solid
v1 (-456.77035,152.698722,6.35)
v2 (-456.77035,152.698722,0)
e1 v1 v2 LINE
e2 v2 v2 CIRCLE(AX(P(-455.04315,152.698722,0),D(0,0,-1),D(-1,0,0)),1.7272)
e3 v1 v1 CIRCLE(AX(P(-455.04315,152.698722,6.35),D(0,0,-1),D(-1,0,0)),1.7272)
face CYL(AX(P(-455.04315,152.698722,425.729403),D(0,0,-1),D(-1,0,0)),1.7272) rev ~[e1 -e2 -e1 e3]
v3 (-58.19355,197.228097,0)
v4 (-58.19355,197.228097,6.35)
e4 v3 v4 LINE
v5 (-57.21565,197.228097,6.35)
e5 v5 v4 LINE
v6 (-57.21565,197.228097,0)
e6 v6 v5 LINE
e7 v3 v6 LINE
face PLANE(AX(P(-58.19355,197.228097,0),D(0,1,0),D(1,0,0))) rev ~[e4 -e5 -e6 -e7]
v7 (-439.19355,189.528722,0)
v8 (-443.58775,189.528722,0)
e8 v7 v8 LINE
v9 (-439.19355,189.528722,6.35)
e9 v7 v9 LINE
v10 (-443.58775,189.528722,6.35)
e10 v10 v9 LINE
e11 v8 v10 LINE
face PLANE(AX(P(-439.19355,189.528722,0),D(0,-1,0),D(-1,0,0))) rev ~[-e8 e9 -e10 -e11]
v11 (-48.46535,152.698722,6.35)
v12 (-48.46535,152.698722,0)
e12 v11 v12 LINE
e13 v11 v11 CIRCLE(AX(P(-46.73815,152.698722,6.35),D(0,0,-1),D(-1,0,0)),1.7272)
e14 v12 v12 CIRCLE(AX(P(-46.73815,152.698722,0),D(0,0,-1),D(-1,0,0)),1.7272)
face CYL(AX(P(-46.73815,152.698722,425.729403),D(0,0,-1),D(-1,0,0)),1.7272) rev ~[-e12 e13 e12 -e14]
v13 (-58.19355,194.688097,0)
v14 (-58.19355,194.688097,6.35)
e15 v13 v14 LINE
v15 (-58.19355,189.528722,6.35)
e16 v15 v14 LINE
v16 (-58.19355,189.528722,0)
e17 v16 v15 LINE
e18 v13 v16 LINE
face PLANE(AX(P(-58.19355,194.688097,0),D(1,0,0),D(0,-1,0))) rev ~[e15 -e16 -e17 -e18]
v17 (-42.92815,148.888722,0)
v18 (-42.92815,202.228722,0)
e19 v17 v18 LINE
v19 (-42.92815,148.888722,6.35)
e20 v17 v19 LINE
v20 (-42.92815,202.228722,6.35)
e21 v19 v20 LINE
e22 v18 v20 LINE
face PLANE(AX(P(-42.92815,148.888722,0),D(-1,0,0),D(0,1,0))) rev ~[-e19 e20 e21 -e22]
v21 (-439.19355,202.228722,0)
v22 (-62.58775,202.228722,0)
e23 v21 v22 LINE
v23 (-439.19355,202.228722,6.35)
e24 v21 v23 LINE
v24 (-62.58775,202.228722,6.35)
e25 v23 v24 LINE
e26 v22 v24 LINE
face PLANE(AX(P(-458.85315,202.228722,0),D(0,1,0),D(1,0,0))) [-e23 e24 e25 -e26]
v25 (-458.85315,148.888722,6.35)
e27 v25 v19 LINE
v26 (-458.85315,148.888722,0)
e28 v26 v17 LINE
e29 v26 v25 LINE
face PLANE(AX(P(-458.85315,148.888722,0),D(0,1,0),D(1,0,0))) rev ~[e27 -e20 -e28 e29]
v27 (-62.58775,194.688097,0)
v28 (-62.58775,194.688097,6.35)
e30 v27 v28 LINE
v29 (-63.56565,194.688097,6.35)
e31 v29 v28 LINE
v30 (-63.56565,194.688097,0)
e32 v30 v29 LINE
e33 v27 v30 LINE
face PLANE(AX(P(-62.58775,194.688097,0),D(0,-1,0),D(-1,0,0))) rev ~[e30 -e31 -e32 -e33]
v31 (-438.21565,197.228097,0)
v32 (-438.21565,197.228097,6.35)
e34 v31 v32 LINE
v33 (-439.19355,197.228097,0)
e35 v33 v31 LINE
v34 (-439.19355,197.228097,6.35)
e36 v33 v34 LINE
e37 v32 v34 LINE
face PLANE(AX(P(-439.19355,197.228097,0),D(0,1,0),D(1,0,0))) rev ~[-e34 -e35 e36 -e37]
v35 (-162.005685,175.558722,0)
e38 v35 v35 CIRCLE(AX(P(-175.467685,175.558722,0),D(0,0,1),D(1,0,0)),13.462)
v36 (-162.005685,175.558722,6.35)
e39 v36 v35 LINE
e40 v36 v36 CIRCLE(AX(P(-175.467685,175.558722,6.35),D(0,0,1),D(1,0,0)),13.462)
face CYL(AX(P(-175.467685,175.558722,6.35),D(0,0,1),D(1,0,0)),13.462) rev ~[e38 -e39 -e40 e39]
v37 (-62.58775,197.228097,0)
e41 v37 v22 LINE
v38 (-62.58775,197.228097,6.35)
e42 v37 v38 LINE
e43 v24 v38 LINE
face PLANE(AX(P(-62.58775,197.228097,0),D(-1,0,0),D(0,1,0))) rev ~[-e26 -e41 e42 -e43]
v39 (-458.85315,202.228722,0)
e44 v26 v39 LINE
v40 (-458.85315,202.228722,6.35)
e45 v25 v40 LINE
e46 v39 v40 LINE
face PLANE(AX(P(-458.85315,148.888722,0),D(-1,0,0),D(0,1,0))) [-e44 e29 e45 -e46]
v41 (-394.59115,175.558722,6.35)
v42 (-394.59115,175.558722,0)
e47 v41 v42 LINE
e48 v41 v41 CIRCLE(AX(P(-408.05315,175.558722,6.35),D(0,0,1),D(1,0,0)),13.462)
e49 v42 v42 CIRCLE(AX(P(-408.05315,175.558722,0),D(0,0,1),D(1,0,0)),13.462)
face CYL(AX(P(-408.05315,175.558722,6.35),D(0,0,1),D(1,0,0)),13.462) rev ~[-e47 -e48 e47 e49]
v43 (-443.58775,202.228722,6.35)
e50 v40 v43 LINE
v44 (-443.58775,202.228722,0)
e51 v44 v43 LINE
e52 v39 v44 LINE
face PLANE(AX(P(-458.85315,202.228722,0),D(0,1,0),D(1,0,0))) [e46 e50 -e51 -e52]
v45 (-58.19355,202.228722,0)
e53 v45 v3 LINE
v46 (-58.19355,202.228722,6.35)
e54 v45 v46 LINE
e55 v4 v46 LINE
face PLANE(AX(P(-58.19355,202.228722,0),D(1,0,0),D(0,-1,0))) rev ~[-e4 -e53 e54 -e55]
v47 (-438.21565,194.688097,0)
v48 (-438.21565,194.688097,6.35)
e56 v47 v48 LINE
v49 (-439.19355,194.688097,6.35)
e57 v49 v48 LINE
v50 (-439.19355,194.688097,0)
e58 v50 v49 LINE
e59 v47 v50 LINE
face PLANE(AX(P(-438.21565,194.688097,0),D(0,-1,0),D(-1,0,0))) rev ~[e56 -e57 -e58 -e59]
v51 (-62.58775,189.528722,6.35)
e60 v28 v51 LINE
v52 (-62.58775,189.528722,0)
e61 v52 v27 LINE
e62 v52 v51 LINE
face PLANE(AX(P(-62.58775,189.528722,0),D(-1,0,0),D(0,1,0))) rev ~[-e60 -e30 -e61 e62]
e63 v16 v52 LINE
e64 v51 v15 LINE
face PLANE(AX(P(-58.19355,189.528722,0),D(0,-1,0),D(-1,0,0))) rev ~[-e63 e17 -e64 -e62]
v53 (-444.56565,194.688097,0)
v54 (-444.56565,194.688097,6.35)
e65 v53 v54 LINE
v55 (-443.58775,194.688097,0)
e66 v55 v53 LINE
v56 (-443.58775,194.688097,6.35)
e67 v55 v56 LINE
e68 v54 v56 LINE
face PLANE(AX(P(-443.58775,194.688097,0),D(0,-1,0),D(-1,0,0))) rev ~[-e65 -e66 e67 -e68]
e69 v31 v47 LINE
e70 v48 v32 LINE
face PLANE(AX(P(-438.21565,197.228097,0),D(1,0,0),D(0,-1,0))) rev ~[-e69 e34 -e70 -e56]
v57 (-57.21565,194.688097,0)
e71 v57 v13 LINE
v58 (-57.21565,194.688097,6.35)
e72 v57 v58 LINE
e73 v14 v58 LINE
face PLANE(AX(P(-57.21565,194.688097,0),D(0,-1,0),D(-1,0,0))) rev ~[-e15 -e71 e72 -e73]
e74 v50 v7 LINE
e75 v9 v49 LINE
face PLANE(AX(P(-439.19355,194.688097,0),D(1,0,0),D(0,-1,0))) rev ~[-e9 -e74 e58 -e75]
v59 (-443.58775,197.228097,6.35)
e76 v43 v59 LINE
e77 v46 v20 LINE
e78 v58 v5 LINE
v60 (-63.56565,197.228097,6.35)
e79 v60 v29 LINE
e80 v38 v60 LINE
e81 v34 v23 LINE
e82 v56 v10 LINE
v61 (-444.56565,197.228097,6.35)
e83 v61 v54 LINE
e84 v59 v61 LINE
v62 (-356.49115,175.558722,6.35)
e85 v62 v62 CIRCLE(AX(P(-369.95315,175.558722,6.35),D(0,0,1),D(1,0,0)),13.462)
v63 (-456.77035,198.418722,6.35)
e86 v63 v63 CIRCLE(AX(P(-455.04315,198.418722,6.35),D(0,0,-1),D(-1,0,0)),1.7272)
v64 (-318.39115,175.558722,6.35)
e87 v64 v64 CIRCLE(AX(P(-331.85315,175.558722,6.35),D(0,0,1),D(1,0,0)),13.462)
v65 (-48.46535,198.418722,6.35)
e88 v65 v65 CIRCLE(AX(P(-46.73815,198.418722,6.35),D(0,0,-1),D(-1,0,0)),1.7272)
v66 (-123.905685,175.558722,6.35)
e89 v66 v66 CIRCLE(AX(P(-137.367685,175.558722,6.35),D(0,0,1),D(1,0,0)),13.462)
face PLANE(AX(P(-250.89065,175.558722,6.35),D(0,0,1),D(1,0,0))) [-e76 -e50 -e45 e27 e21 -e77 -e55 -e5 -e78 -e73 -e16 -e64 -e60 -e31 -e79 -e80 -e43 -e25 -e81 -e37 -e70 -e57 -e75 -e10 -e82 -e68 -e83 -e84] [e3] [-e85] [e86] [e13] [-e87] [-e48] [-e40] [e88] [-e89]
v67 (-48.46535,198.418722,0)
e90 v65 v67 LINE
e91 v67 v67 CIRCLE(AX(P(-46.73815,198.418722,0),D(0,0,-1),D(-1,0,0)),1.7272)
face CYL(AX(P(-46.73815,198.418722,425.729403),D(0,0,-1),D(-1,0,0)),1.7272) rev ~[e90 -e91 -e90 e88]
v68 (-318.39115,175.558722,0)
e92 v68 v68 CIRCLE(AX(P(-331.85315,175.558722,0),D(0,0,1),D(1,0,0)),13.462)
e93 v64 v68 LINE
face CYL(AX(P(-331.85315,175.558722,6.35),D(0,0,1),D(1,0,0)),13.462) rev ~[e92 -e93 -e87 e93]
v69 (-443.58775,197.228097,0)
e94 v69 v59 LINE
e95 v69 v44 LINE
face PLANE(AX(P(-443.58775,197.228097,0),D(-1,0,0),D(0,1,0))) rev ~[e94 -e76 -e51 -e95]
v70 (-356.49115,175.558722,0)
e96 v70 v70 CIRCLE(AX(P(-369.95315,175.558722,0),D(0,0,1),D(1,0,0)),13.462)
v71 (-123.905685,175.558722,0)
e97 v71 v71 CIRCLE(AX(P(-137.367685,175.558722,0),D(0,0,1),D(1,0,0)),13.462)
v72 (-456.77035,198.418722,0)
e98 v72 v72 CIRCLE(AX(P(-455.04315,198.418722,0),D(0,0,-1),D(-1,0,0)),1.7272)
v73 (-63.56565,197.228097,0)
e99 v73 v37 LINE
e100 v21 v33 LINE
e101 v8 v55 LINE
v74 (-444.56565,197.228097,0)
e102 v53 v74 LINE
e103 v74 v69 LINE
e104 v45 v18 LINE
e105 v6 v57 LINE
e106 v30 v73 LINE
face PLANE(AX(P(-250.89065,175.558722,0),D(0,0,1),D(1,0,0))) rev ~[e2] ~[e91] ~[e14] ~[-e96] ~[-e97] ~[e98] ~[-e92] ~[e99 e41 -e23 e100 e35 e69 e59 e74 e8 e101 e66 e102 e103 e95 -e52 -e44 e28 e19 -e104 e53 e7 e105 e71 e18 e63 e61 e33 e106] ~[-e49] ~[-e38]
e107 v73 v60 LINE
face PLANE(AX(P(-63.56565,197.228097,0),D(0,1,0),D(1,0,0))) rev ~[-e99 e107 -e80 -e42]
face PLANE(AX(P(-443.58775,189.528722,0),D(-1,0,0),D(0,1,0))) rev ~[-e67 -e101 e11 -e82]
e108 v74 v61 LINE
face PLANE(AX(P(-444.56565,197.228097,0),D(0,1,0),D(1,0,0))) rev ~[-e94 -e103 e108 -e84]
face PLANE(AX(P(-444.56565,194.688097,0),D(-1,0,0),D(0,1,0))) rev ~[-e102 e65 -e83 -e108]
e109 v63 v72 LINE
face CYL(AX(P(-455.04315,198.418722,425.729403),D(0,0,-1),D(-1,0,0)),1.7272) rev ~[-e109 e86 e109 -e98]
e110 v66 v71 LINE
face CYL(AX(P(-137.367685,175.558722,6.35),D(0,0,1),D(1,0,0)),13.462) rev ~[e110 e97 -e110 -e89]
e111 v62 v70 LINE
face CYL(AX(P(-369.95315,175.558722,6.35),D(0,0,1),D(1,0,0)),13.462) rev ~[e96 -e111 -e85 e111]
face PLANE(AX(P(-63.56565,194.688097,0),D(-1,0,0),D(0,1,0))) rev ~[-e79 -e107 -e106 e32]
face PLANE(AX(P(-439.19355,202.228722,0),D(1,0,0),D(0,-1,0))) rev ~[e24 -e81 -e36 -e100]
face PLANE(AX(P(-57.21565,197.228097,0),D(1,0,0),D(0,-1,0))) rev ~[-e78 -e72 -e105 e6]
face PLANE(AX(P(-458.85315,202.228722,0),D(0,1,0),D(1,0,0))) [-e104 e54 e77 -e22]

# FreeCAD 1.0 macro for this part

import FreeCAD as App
import Part
import Sketcher
from FreeCAD import Vector
Q = App.Units.Quantity

doc = App.newDocument("Part")
body = doc.addObject("PartDesign::Body", "Body")

sketch1 = body.newObject("Sketcher::SketchObject", "Sketch")
sketch1.AttachmentSupport = (doc.getObject("XY_Plane"), [""])
sketch1.MapMode = "FlatFace"
sketch1.addGeometry([
    Part.LineSegment(Vector(-459, 202, 0), Vector(-459, 149, 0)),
    Part.LineSegment(Vector(-459, 149, 0), Vector(-43, 149, 0)),
    Part.LineSegment(Vector(-43, 149, 0), Vector(-43, 202, 0)),
    Part.LineSegment(Vector(-43, 202, 0), Vector(-459, 202, 0)),
], False)
sketch1.addConstraint([
    Sketcher.Constraint("Coincident", 0, 2, 1, 1),
    Sketcher.Constraint("Coincident", 1, 2, 2, 1),
    Sketcher.Constraint("Coincident", 2, 2, 3, 1),
    Sketcher.Constraint("Coincident", 3, 2, 0, 1),
    Sketcher.Constraint("Vertical", 0),
    Sketcher.Constraint("Horizontal", 1),
    Sketcher.Constraint("Vertical", 2),
    Sketcher.Constraint("Horizontal", 3),
    Sketcher.Constraint("DistanceY", 0, 2, 0, 1, Q("2.1 in")),
    Sketcher.Constraint("DistanceX", 1, 1, 1, 2, Q("16.375 in")),
    Sketcher.Constraint("DistanceX", 0, 2, -1, 1, 458.85315),
    Sketcher.Constraint("DistanceY", -1, 1, 0, 2, 148.888722),
])
pad1 = body.newObject("PartDesign::Pad", "Pad")
pad1.Profile = sketch1
pad1.Length = Q("0.25 in")

sketch2 = body.newObject("Sketcher::SketchObject", "Sketch001")
sketch2.AttachmentSupport = (doc.getObject("XY_Plane"), [""])
sketch2.MapMode = "FlatFace"
sketch2.AttachmentOffset = App.Placement(Vector(0, 0, 0.25 * 25.4), App.Rotation())
sketch2.addGeometry([
    Part.Circle(Vector(-408, 176, 0), Vector(0, 0, 1), 13),
    Part.Circle(Vector(-175, 176, 0), Vector(0, 0, 1), 13),
    Part.Circle(Vector(-370, 176, 0), Vector(0, 0, 1), 13),
    Part.Circle(Vector(-332, 176, 0), Vector(0, 0, 1), 13),
    Part.Circle(Vector(-137, 176, 0), Vector(0, 0, 1), 13),
], False)
sketch2.addConstraint([
    Sketcher.Constraint("Equal", 0, 1),
    Sketcher.Constraint("Equal", 1, 2),
    Sketcher.Constraint("Equal", 2, 3),
    Sketcher.Constraint("Equal", 3, 4),
    Sketcher.Constraint("Horizontal", 0, 3, 1, 3),
    Sketcher.Constraint("Horizontal", 1, 3, 2, 3),
    Sketcher.Constraint("Horizontal", 2, 3, 3, 3),
    Sketcher.Constraint("Horizontal", 3, 3, 4, 3),
    Sketcher.Constraint("Diameter", 0, Q("1.06 in")),
    Sketcher.Constraint("DistanceX", 0, 3, 3, 3, Q("3 in")),
    Sketcher.Constraint("DistanceX", 0, 3, 2, 3, Q("1.5 in")),
    Sketcher.Constraint("DistanceX", 1, 3, 4, 3, Q("1.5 in")),
    Sketcher.Constraint("DistanceX", 0, 3, -1, 1, 408.05315),
    Sketcher.Constraint("DistanceY", -1, 1, 0, 3, 175.558722),
    Sketcher.Constraint("DistanceX", 1, 3, -1, 1, 175.467685),
])
pocket1 = body.newObject("PartDesign::Pocket", "Pocket")
pocket1.Profile = sketch2
pocket1.Type = "ThroughAll"

sketch3 = body.newObject("Sketcher::SketchObject", "Sketch002")
sketch3.AttachmentSupport = (doc.getObject("XY_Plane"), [""])
sketch3.MapMode = "FlatFace"
sketch3.AttachmentOffset = App.Placement(Vector(0, 0, 0.25 * 25.4), App.Rotation())
sketch3.addGeometry([
    Part.Circle(Vector(-455, 198.4, 0), Vector(0, 0, 1), 1.7),
    Part.Circle(Vector(-455, 152.7, 0), Vector(0, 0, 1), 1.7),
    Part.Circle(Vector(-46.7, 198.4, 0), Vector(0, 0, 1), 1.7),
    Part.Circle(Vector(-46.7, 152.7, 0), Vector(0, 0, 1), 1.7),
], False)
sketch3.addConstraint([
    Sketcher.Constraint("Equal", 0, 1),
    Sketcher.Constraint("Equal", 1, 2),
    Sketcher.Constraint("Equal", 2, 3),
    Sketcher.Constraint("Horizontal", 0, 3, 2, 3),
    Sketcher.Constraint("Horizontal", 1, 3, 3, 3),
    Sketcher.Constraint("Vertical", 0, 3, 1, 3),
    Sketcher.Constraint("Vertical", 2, 3, 3, 3),
    Sketcher.Constraint("Diameter", 0, Q("0.136 in")),
    Sketcher.Constraint("DistanceY", 1, 3, 0, 3, Q("1.8 in")),
    Sketcher.Constraint("DistanceX", 0, 3, 2, 3, Q("16.075 in")),
    Sketcher.Constraint("DistanceX", 0, 3, -1, 1, 455.04315),
    Sketcher.Constraint("DistanceY", -1, 1, 0, 3, 198.418722),
])
doc.recompute()
hole = body.newObject("PartDesign::Hole", "Hole")
hole.Profile = sketch3
hole.ThreadType = "None"
hole.Diameter = Q("0.136 in")
hole.DepthType = "ThroughAll"

sketch4 = body.newObject("Sketcher::SketchObject", "Sketch003")
sketch4.AttachmentSupport = (doc.getObject("XY_Plane"), [""])
sketch4.MapMode = "FlatFace"
sketch4.addGeometry([
    Part.LineSegment(Vector(-443.6, 202.2, 0), Vector(-439.2, 202.2, 0)),
    Part.LineSegment(Vector(-439.2, 202.2, 0), Vector(-439.2, 197.2, 0)),
    Part.LineSegment(Vector(-439.2, 197.2, 0), Vector(-438.2, 197.2, 0)),
    Part.LineSegment(Vector(-438.2, 197.2, 0), Vector(-438.2, 194.7, 0)),
    Part.LineSegment(Vector(-438.2, 194.7, 0), Vector(-439.2, 194.7, 0)),
    Part.LineSegment(Vector(-439.2, 194.7, 0), Vector(-439.2, 189.5, 0)),
    Part.LineSegment(Vector(-439.2, 189.5, 0), Vector(-443.6, 189.5, 0)),
    Part.LineSegment(Vector(-443.6, 189.5, 0), Vector(-443.6, 194.7, 0)),
    Part.LineSegment(Vector(-443.6, 194.7, 0), Vector(-444.6, 194.7, 0)),
    Part.LineSegment(Vector(-444.6, 194.7, 0), Vector(-444.6, 197.2, 0)),
    Part.LineSegment(Vector(-444.6, 197.2, 0), Vector(-443.6, 197.2, 0)),
    Part.LineSegment(Vector(-443.6, 197.2, 0), Vector(-443.6, 202.2, 0)),
    Part.LineSegment(Vector(-62.6, 202.2, 0), Vector(-58.2, 202.2, 0)),
    Part.LineSegment(Vector(-58.2, 202.2, 0), Vector(-58.2, 197.2, 0)),
    Part.LineSegment(Vector(-58.2, 197.2, 0), Vector(-57.2, 197.2, 0)),
    Part.LineSegment(Vector(-57.2, 197.2, 0), Vector(-57.2, 194.7, 0)),
    Part.LineSegment(Vector(-57.2, 194.7, 0), Vector(-58.2, 194.7, 0)),
    Part.LineSegment(Vector(-58.2, 194.7, 0), Vector(-58.2, 189.5, 0)),
    Part.LineSegment(Vector(-58.2, 189.5, 0), Vector(-62.6, 189.5, 0)),
    Part.LineSegment(Vector(-62.6, 189.5, 0), Vector(-62.6, 194.7, 0)),
    Part.LineSegment(Vector(-62.6, 194.7, 0), Vector(-63.6, 194.7, 0)),
    Part.LineSegment(Vector(-63.6, 194.7, 0), Vector(-63.6, 197.2, 0)),
    Part.LineSegment(Vector(-63.6, 197.2, 0), Vector(-62.6, 197.2, 0)),
    Part.LineSegment(Vector(-62.6, 197.2, 0), Vector(-62.6, 202.2, 0)),
], False)
sketch4.addConstraint([
    Sketcher.Constraint("Coincident", 0, 2, 1, 1),
    Sketcher.Constraint("Coincident", 1, 2, 2, 1),
    Sketcher.Constraint("Coincident", 2, 2, 3, 1),
    Sketcher.Constraint("Coincident", 3, 2, 4, 1),
    Sketcher.Constraint("Coincident", 4, 2, 5, 1),
    Sketcher.Constraint("Coincident", 5, 2, 6, 1),
    Sketcher.Constraint("Coincident", 6, 2, 7, 1),
    Sketcher.Constraint("Coincident", 7, 2, 8, 1),
    Sketcher.Constraint("Coincident", 8, 2, 9, 1),
    Sketcher.Constraint("Coincident", 9, 2, 10, 1),
    Sketcher.Constraint("Coincident", 10, 2, 11, 1),
    Sketcher.Constraint("Coincident", 11, 2, 0, 1),
    Sketcher.Constraint("Coincident", 12, 2, 13, 1),
    Sketcher.Constraint("Coincident", 13, 2, 14, 1),
    Sketcher.Constraint("Coincident", 14, 2, 15, 1),
    Sketcher.Constraint("Coincident", 15, 2, 16, 1),
    Sketcher.Constraint("Coincident", 16, 2, 17, 1),
    Sketcher.Constraint("Coincident", 17, 2, 18, 1),
    Sketcher.Constraint("Coincident", 18, 2, 19, 1),
    Sketcher.Constraint("Coincident", 19, 2, 20, 1),
    Sketcher.Constraint("Coincident", 20, 2, 21, 1),
    Sketcher.Constraint("Coincident", 21, 2, 22, 1),
    Sketcher.Constraint("Coincident", 22, 2, 23, 1),
    Sketcher.Constraint("Coincident", 23, 2, 12, 1),
    Sketcher.Constraint("Horizontal", 0),
    Sketcher.Constraint("Vertical", 1),
    Sketcher.Constraint("Horizontal", 2),
    Sketcher.Constraint("Vertical", 3),
    Sketcher.Constraint("Horizontal", 4),
    Sketcher.Constraint("Vertical", 5),
    Sketcher.Constraint("Horizontal", 6),
    Sketcher.Constraint("Vertical", 7),
    Sketcher.Constraint("Horizontal", 8),
    Sketcher.Constraint("Vertical", 9),
    Sketcher.Constraint("Horizontal", 10),
    Sketcher.Constraint("Vertical", 11),
    Sketcher.Constraint("Horizontal", 12),
    Sketcher.Constraint("Vertical", 13),
    Sketcher.Constraint("Horizontal", 14),
    Sketcher.Constraint("Vertical", 15),
    Sketcher.Constraint("Horizontal", 16),
    Sketcher.Constraint("Vertical", 17),
    Sketcher.Constraint("Horizontal", 18),
    Sketcher.Constraint("Vertical", 19),
    Sketcher.Constraint("Horizontal", 20),
    Sketcher.Constraint("Vertical", 21),
    Sketcher.Constraint("Horizontal", 22),
    Sketcher.Constraint("Vertical", 23),
    Sketcher.Constraint("Horizontal", 4, 2, 7, 2),
    Sketcher.Constraint("Horizontal", 2, 2, 9, 2),
    Sketcher.Constraint("Horizontal", 11, 2, 12, 2),
    Sketcher.Constraint("Horizontal", 10, 2, 13, 2),
    Sketcher.Constraint("Horizontal", 8, 2, 15, 2),
    Sketcher.Constraint("Horizontal", 6, 2, 17, 2),
    Sketcher.Constraint("Horizontal", 16, 2, 19, 2),
    Sketcher.Constraint("Horizontal", 14, 2, 21, 2),
    Sketcher.Constraint("Vertical", 1, 2, 4, 2),
    Sketcher.Constraint("Vertical", 7, 2, 10, 2),
    Sketcher.Constraint("Vertical", 13, 2, 16, 2),
    Sketcher.Constraint("Vertical", 19, 2, 22, 2),
    Sketcher.Constraint("Equal", 4, 8),
    Sketcher.Constraint("Equal", 6, 12),
    Sketcher.Constraint("Equal", 10, 14),
    Sketcher.Constraint("Equal", 16, 20),
    Sketcher.Constraint("DistanceY", 3, 2, 3, 1, Q("0.1 in")),
    Sketcher.Constraint("DistanceX", 0, 2, 12, 2, Q("15 in")),
    Sketcher.Constraint("DistanceY", 5, 2, 0, 2, Q("0.5 in")),
    Sketcher.Constraint("DistanceX", 0, 1, 0, 2, Q("0.173 in")),
    Sketcher.Constraint("DistanceY", 5, 2, 5, 1, Q("0.203125 in")),
    Sketcher.Constraint("DistanceX", 8, 2, 3, 2, Q("0.25 in")),
    Sketcher.Constraint("DistanceX", 0, 2, -1, 1, 439.19355),
    Sketcher.Constraint("DistanceY", -1, 1, 0, 2, 202.228722),
])
pocket2 = body.newObject("PartDesign::Pocket", "Pocket001")
pocket2.Profile = sketch4
pocket2.Type = "ThroughAll"
pocket2.Reversed = True

doc.recompute()
